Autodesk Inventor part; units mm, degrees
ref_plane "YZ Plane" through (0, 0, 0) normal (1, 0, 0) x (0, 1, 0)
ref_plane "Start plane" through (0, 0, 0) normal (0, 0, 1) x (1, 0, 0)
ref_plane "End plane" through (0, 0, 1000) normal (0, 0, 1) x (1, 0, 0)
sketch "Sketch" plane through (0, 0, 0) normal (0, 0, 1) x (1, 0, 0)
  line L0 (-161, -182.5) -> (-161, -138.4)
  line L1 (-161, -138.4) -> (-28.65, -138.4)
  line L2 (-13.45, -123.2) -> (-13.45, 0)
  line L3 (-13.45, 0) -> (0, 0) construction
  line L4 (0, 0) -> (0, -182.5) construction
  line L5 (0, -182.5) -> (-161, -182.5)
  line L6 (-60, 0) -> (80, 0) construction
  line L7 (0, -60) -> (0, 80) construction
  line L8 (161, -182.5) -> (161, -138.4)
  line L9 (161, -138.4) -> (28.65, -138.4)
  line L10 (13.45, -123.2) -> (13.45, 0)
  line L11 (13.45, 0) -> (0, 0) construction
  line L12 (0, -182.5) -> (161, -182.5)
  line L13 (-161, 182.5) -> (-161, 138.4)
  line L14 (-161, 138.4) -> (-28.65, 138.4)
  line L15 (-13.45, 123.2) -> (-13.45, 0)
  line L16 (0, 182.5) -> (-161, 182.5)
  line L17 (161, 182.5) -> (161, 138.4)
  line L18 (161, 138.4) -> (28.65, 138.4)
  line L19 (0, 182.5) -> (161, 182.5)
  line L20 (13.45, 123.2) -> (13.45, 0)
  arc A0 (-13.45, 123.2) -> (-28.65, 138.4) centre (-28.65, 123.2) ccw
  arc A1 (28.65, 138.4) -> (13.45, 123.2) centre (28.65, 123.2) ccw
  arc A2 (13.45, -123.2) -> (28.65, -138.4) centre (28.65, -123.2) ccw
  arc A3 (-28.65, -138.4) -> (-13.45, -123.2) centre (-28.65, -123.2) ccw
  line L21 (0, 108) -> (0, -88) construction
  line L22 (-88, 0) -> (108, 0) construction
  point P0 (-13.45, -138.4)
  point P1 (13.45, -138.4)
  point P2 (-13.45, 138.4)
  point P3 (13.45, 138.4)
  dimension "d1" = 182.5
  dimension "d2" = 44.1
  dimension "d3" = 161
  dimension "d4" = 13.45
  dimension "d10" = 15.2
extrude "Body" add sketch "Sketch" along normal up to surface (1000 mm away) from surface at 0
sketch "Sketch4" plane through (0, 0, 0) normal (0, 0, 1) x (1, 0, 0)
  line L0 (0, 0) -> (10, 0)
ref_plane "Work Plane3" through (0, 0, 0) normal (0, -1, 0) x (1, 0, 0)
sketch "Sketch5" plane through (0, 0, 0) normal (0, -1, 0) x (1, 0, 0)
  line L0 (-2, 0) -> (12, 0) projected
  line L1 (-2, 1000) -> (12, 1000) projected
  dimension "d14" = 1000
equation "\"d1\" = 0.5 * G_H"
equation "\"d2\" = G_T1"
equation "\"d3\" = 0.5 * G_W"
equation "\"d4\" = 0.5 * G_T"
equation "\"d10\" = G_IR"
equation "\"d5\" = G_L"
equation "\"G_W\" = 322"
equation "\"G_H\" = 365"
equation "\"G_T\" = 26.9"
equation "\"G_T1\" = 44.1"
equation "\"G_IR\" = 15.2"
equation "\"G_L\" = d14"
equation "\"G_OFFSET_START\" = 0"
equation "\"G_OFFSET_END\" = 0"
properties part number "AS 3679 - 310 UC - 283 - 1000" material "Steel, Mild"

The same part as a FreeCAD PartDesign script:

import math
import FreeCAD as App
import Part
import Sketcher

V = App.Vector

doc = App.newDocument("Part")
body = doc.addObject("PartDesign::Body", "Body")

sketch1 = body.newObject("Sketcher::SketchObject", "Sketch")
sketch1.AttachmentSupport = (doc.getObject("XY_Plane"), [""])
sketch1.MapMode = "FlatFace"
sketch1.addGeometry([
    Part.LineSegment(V(-161, -138.4, 0), V(-161, -182.5, 0)),
    Part.LineSegment(V(-161, -182.5, 0), V(161, -182.5, 0)),
    Part.LineSegment(V(161, -182.5, 0), V(161, -138.4, 0)),
    Part.LineSegment(V(161, -138.4, 0), V(28.65, -138.4, 0)),
    Part.ArcOfCircle(Part.Circle(V(28.65, -123.2, 0), V(0, 0, 1), 15.2), math.radians(180), math.radians(270)),
    Part.LineSegment(V(13.45, -123.2, 0), V(13.45, 123.2, 0)),
    Part.ArcOfCircle(Part.Circle(V(28.65, 123.2, 0), V(0, 0, 1), 15.2), math.radians(90), math.radians(180)),
    Part.LineSegment(V(28.65, 138.4, 0), V(161, 138.4, 0)),
    Part.LineSegment(V(161, 138.4, 0), V(161, 182.5, 0)),
    Part.LineSegment(V(161, 182.5, 0), V(-161, 182.5, 0)),
    Part.LineSegment(V(-161, 182.5, 0), V(-161, 138.4, 0)),
    Part.LineSegment(V(-161, 138.4, 0), V(-28.65, 138.4, 0)),
    Part.ArcOfCircle(Part.Circle(V(-28.65, 123.2, 0), V(0, 0, 1), 15.2), math.radians(0), math.radians(90)),
    Part.LineSegment(V(-13.45, 123.2, 0), V(-13.45, -123.2, 0)),
    Part.ArcOfCircle(Part.Circle(V(-28.65, -123.2, 0), V(0, 0, 1), 15.2), math.radians(-90), math.radians(0)),
    Part.LineSegment(V(-28.65, -138.4, 0), V(-161, -138.4, 0)),
], False)
sketch1.addConstraint([
    Sketcher.Constraint("Coincident", 0, 2, 1, 1),
    Sketcher.Constraint("Coincident", 1, 2, 2, 1),
    Sketcher.Constraint("Coincident", 2, 2, 3, 1),
    Sketcher.Constraint("Tangent", 3, 2, 4, 2),
    Sketcher.Constraint("Tangent", 4, 1, 5, 1),
    Sketcher.Constraint("Tangent", 5, 2, 6, 2),
    Sketcher.Constraint("Tangent", 6, 1, 7, 1),
    Sketcher.Constraint("Coincident", 7, 2, 8, 1),
    Sketcher.Constraint("Coincident", 8, 2, 9, 1),
    Sketcher.Constraint("Coincident", 9, 2, 10, 1),
    Sketcher.Constraint("Coincident", 10, 2, 11, 1),
    Sketcher.Constraint("Tangent", 11, 2, 12, 2),
    Sketcher.Constraint("Tangent", 12, 1, 13, 1),
    Sketcher.Constraint("Tangent", 13, 2, 14, 2),
    Sketcher.Constraint("Tangent", 14, 1, 15, 1),
    Sketcher.Constraint("Coincident", 15, 2, 0, 1),
    Sketcher.Constraint("Vertical", 0),
    Sketcher.Constraint("Horizontal", 1),
    Sketcher.Constraint("Vertical", 2),
    Sketcher.Constraint("Horizontal", 3),
    Sketcher.Constraint("Vertical", 5),
    Sketcher.Constraint("Horizontal", 7),
    Sketcher.Constraint("Vertical", 8),
    Sketcher.Constraint("Horizontal", 9),
    Sketcher.Constraint("Vertical", 10),
    Sketcher.Constraint("Horizontal", 11),
    Sketcher.Constraint("Vertical", 13),
    Sketcher.Constraint("Horizontal", 15),
    Sketcher.Constraint("Equal", 4, 6),
    Sketcher.Constraint("Equal", 6, 12),
    Sketcher.Constraint("Equal", 12, 14),
    Sketcher.Constraint("Symmetric", 4, 3, 12, 3, -1, 1),
    Sketcher.Constraint("Symmetric", 0, 2, 8, 2, -1, 1),
    Sketcher.Constraint("Symmetric", 7, 2, 10, 2, -2),
    Sketcher.Constraint("Symmetric", 2, 2, 15, 2, -2),
    Sketcher.Constraint("Radius", 4, 15.2),
    Sketcher.Constraint("DistanceY", 0, 2, 0, 1, 44.1),
    Sketcher.Constraint("DistanceX", 0, 2, -1, 1, 161.0),
    Sketcher.Constraint("DistanceY", 0, 2, -1, 1, 182.5),
    Sketcher.Constraint("DistanceX", -1, 1, 4, 1, 13.45),
])
pad1 = body.newObject("PartDesign::Pad", "Pad")
pad1.Profile = sketch1
pad1.Length = 1000

doc.recompute()
